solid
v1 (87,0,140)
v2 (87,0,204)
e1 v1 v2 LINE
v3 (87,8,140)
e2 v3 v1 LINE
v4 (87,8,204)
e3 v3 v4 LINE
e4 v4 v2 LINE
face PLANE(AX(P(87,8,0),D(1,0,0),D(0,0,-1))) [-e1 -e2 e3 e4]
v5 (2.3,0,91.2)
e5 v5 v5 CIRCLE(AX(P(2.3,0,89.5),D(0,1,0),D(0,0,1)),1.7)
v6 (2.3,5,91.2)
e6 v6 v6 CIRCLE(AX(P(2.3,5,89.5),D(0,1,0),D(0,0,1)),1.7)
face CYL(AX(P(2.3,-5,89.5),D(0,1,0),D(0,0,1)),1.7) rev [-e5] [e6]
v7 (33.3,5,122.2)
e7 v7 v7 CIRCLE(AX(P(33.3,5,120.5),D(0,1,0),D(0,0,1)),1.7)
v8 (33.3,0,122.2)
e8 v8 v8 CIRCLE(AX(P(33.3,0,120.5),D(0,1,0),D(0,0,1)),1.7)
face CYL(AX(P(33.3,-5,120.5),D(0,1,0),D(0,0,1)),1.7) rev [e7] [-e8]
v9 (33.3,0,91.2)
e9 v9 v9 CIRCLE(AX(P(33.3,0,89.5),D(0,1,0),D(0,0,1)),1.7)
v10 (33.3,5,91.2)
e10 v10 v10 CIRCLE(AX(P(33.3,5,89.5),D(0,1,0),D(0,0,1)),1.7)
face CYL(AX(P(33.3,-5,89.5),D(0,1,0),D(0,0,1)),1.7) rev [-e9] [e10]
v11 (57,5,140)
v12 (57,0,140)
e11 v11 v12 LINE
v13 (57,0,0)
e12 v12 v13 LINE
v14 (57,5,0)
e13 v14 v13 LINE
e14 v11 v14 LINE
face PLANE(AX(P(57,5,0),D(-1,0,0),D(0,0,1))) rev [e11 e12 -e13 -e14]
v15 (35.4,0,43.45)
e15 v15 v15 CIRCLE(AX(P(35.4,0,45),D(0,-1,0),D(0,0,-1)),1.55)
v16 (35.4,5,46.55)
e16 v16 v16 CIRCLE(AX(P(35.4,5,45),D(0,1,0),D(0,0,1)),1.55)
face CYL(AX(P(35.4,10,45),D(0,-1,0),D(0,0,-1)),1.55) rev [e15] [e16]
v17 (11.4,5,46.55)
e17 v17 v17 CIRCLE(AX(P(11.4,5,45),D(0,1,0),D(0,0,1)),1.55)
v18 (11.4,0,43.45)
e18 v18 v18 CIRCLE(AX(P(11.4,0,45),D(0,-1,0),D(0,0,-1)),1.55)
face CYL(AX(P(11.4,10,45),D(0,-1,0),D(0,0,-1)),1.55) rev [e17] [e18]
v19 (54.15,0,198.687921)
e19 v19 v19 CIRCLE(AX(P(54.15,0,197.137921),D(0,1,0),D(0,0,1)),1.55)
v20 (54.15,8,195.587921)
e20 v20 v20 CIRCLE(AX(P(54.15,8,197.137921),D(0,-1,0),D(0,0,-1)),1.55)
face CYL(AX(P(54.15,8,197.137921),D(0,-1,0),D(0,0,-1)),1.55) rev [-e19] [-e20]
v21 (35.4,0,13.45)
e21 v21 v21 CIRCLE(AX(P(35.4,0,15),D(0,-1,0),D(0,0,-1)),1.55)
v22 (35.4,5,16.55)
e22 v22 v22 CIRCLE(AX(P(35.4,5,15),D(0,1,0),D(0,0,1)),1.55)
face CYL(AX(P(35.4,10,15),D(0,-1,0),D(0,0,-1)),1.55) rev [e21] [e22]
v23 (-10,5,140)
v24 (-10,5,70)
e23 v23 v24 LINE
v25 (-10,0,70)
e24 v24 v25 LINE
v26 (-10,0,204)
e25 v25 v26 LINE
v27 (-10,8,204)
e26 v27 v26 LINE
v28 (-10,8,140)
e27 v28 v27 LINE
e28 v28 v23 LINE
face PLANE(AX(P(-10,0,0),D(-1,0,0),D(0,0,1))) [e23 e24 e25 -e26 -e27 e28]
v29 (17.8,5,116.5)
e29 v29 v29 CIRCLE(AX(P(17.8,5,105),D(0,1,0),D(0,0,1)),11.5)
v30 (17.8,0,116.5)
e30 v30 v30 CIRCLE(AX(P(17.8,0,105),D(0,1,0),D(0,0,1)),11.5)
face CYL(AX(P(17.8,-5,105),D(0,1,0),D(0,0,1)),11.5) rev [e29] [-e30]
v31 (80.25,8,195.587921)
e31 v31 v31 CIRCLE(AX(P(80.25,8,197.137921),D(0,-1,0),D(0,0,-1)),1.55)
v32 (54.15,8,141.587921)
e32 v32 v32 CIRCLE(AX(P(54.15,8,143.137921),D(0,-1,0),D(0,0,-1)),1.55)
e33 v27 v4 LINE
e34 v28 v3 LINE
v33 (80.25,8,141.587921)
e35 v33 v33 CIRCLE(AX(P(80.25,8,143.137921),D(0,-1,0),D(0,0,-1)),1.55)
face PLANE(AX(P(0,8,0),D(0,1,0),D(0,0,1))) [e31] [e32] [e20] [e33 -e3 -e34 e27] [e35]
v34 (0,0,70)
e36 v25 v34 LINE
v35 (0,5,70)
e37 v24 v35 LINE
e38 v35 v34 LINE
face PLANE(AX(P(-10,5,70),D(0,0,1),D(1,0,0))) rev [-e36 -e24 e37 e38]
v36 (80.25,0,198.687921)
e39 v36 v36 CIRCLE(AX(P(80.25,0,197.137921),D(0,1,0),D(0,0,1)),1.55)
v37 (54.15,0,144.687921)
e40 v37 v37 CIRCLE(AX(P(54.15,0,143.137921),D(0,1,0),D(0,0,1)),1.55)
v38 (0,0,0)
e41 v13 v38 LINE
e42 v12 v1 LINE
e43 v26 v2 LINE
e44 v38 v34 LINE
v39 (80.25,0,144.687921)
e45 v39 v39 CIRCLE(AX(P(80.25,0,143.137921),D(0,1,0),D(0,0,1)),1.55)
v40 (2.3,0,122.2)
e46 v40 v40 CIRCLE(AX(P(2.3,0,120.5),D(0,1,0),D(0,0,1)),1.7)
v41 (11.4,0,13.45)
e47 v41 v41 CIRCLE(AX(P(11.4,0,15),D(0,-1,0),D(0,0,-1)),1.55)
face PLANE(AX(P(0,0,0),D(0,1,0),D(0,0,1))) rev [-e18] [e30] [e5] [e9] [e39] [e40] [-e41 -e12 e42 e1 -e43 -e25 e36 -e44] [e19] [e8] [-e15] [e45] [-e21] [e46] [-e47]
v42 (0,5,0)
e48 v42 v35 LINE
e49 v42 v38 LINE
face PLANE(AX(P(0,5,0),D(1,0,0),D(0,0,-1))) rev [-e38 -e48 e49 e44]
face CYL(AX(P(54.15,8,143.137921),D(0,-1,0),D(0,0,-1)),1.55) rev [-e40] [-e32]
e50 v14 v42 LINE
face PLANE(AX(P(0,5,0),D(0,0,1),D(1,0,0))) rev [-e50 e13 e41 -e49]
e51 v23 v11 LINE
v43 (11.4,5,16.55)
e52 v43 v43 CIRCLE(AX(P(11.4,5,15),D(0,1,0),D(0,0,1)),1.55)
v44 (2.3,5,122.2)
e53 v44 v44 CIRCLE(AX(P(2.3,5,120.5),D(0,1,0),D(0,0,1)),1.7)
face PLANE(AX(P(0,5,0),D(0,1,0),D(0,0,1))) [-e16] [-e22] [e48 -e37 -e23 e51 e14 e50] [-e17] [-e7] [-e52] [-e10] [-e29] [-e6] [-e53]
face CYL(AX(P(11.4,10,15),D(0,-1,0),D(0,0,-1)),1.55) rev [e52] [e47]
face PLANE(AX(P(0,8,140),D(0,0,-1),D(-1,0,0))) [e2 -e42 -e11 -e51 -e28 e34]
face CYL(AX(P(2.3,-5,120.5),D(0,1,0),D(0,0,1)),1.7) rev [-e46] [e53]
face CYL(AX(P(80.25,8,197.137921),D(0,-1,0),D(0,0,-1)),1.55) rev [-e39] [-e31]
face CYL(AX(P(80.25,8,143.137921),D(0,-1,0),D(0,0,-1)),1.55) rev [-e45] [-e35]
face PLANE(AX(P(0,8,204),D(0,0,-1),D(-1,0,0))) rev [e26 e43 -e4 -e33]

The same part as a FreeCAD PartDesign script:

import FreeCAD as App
import Part
import Sketcher
from FreeCAD import Vector


def add_polygon(sketch, points):
    """Adds a closed chain of lines whose ends are joined by coincident constraints."""
    first, n = sketch.GeometryCount, len(points)
    for a, b in zip(points, points[1:] + points[:1]):
        sketch.addGeometry(Part.LineSegment(App.Vector(*a, 0), App.Vector(*b, 0)), False)
    for i in range(n):
        sketch.addConstraint(Sketcher.Constraint("Coincident", first + i, 2, first + (i + 1) % n, 1))

doc = App.newDocument("Part")
body = doc.addObject("PartDesign::Body", "Body")

sketch1 = body.newObject("Sketcher::SketchObject", "Sketch")
sketch1.AttachmentSupport = (doc.getObject("XZ_Plane"), [""])
sketch1.MapMode = "FlatFace"
add_polygon(sketch1, [(0, 0), (0, 140), (57, 140), (57, 0)])
sketch1.addConstraint([
    Sketcher.Constraint("Vertical", 0),
    Sketcher.Constraint("Horizontal", 1),
    Sketcher.Constraint("Vertical", 2),
    Sketcher.Constraint("Horizontal", 3),
    Sketcher.Constraint("Coincident", 3, 2, -1, 1),
    Sketcher.Constraint("DistanceX", 1, 1, 1, 2, 57.0),
    Sketcher.Constraint("DistanceY", 0, 1, 0, 2, 140.0),
])
pad1 = body.newObject("PartDesign::Pad", "Pad")
pad1.Profile = sketch1
pad1.Length = 5
pad1.Reversed = True

sketch2 = body.newObject("Sketcher::SketchObject", "Sketch001")
sketch2.AttachmentSupport = (doc.getObject("XZ_Plane"), [""])
sketch2.MapMode = "FlatFace"
sketch2.addGeometry([
    Part.Circle(Vector(11.4, 45, 0), Vector(0, 0, 1), 1.6),
    Part.Circle(Vector(11.4, 15, 0), Vector(0, 0, 1), 1.6),
    Part.Circle(Vector(35.4, 15, 0), Vector(0, 0, 1), 1.6),
    Part.Circle(Vector(35.4, 45, 0), Vector(0, 0, 1), 1.6),
], False)
sketch2.addConstraint([
    Sketcher.Constraint("Equal", 0, 1),
    Sketcher.Constraint("Equal", 1, 2),
    Sketcher.Constraint("Equal", 2, 3),
    Sketcher.Constraint("Horizontal", 1, 3, 2, 3),
    Sketcher.Constraint("Horizontal", 0, 3, 3, 3),
    Sketcher.Constraint("Vertical", 0, 3, 1, 3),
    Sketcher.Constraint("Vertical", 2, 3, 3, 3),
    Sketcher.Constraint("Diameter", 0, 3.1),
    Sketcher.Constraint("DistanceY", -1, 1, 0, 3, 45.0),
    Sketcher.Constraint("DistanceY", -1, 1, 1, 3, 15.0),
    Sketcher.Constraint("DistanceX", 1, 3, 2, 3, 24.0),
    Sketcher.Constraint("DistanceX", -1, 1, 0, 3, 11.4),
])
pocket1 = body.newObject("PartDesign::Pocket", "Pocket")
pocket1.Profile = sketch2
pocket1.Length = 10

sketch3 = body.newObject("Sketcher::SketchObject", "Sketch002")
sketch3.AttachmentSupport = (doc.getObject("YZ_Plane"), [""])
sketch3.MapMode = "FlatFace"
add_polygon(sketch3, [(5, 70), (0, 70), (0, 140), (5, 140)])
sketch3.addConstraint([
    Sketcher.Constraint("Horizontal", 0),
    Sketcher.Constraint("Vertical", 1),
    Sketcher.Constraint("Horizontal", 2),
    Sketcher.Constraint("Vertical", 3),
    Sketcher.Constraint("PointOnObject", 0, 2, -2),
    Sketcher.Constraint("DistanceX", 0, 2, 0, 1, 5.0),
    Sketcher.Constraint("DistanceY", 1, 1, 1, 2, 70.0),
    Sketcher.Constraint("DistanceY", -1, 1, 0, 2, 70.0),
])
pad2 = body.newObject("PartDesign::Pad", "Pad001")
pad2.Profile = sketch3
pad2.Length = 10
pad2.Reversed = True

sketch4 = body.newObject("Sketcher::SketchObject", "Sketch003")
sketch4.AttachmentSupport = (doc.getObject("XZ_Plane"), [""])
sketch4.MapMode = "FlatFace"
sketch4.AttachmentOffset = App.Placement(Vector(0, 0, -5), App.Rotation())
sketch4.addGeometry([
    Part.Circle(Vector(17.8, 105, 0), Vector(0, 0, 1), 11.5),
    Part.Circle(Vector(33.3, 89.5, 0), Vector(0, 0, 1), 1.7),
    Part.Circle(Vector(2.3, 89.5, 0), Vector(0, 0, 1), 1.7),
    Part.Circle(Vector(2.3, 120.5, 0), Vector(0, 0, 1), 1.7),
    Part.Circle(Vector(33.3, 120.5, 0), Vector(0, 0, 1), 1.7),
], False)
sketch4.addConstraint([
    Sketcher.Constraint("Equal", 1, 2),
    Sketcher.Constraint("Equal", 2, 3),
    Sketcher.Constraint("Equal", 3, 4),
    Sketcher.Constraint("Horizontal", 1, 3, 2, 3),
    Sketcher.Constraint("Horizontal", 3, 3, 4, 3),
    Sketcher.Constraint("Vertical", 2, 3, 3, 3),
    Sketcher.Constraint("Vertical", 1, 3, 4, 3),
    Sketcher.Constraint("Diameter", 0, 23.0),
    Sketcher.Constraint("Diameter", 1, 3.4),
    Sketcher.Constraint("DistanceY", -1, 1, 0, 3, 105.0),
    Sketcher.Constraint("DistanceX", 2, 3, 1, 3, 31.0),
    Sketcher.Constraint("DistanceY", 2, 3, 3, 3, 31.0),
    Sketcher.Constraint("DistanceX", -1, 1, 0, 3, 17.8),
    Sketcher.Constraint("DistanceX", -1, 1, 1, 3, 33.3),
    Sketcher.Constraint("DistanceY", -1, 1, 1, 3, 89.5),
])
pocket2 = body.newObject("PartDesign::Pocket", "Pocket001")
pocket2.Profile = sketch4
pocket2.Length = 10
pocket2.Reversed = True

sketch5 = body.newObject("Sketcher::SketchObject", "Sketch004")
sketch5.AttachmentSupport = (doc.getObject("XZ_Plane"), [""])
sketch5.MapMode = "FlatFace"
sketch5.AttachmentOffset = App.Placement(Vector(0, 0, -5), App.Rotation())
add_polygon(sketch5, [(87, 140), (-10, 140), (-10, 204), (87, 204)])
sketch5.addConstraint([
    Sketcher.Constraint("Horizontal", 0),
    Sketcher.Constraint("Vertical", 1),
    Sketcher.Constraint("Horizontal", 2),
    Sketcher.Constraint("Vertical", 3),
    Sketcher.Constraint("DistanceX", 0, 2, 0, 1, 97.0),
    Sketcher.Constraint("DistanceY", 1, 1, 1, 2, 64.0),
    Sketcher.Constraint("DistanceX", 0, 2, -1, 1, 10.0),
    Sketcher.Constraint("DistanceY", -1, 1, 0, 2, 140.0),
])
pad3 = body.newObject("PartDesign::Pad", "Pad002")
pad3.Profile = sketch5
pad3.Type = "TwoLengths"
pad3.Length = 3
pad3.Length2 = 5
pad3.Reversed = True

sketch6 = body.newObject("Sketcher::SketchObject", "Sketch005")
sketch6.AttachmentSupport = (doc.getObject("XZ_Plane"), [""])
sketch6.MapMode = "FlatFace"
sketch6.addGeometry([
    Part.Circle(Vector(54.1, 197.1, 0), Vector(0, 0, 1), 1.6),
    Part.Circle(Vector(80.2, 197.1, 0), Vector(0, 0, 1), 1.6),
    Part.Circle(Vector(54.1, 143.1, 0), Vector(0, 0, 1), 1.6),
    Part.Circle(Vector(80.2, 143.1, 0), Vector(0, 0, 1), 1.6),
], False)
sketch6.addConstraint([
    Sketcher.Constraint("Equal", 0, 1),
    Sketcher.Constraint("Equal", 1, 2),
    Sketcher.Constraint("Equal", 2, 3),
    Sketcher.Constraint("Horizontal", 0, 3, 1, 3),
    Sketcher.Constraint("Horizontal", 2, 3, 3, 3),
    Sketcher.Constraint("Vertical", 0, 3, 2, 3),
    Sketcher.Constraint("Vertical", 1, 3, 3, 3),
    Sketcher.Constraint("Diameter", 0, 3.1),
    Sketcher.Constraint("DistanceY", 2, 3, 0, 3, 54.0),
    Sketcher.Constraint("DistanceX", 0, 3, 1, 3, 26.1),
    Sketcher.Constraint("DistanceX", -1, 1, 0, 3, 54.15),
    Sketcher.Constraint("DistanceY", -1, 1, 0, 3, 197.137921),
])
pocket3 = body.newObject("PartDesign::Pocket", "Pocket002")
pocket3.Profile = sketch6
pocket3.Type = "ThroughAll"
pocket3.Midplane = True

doc.recompute()
